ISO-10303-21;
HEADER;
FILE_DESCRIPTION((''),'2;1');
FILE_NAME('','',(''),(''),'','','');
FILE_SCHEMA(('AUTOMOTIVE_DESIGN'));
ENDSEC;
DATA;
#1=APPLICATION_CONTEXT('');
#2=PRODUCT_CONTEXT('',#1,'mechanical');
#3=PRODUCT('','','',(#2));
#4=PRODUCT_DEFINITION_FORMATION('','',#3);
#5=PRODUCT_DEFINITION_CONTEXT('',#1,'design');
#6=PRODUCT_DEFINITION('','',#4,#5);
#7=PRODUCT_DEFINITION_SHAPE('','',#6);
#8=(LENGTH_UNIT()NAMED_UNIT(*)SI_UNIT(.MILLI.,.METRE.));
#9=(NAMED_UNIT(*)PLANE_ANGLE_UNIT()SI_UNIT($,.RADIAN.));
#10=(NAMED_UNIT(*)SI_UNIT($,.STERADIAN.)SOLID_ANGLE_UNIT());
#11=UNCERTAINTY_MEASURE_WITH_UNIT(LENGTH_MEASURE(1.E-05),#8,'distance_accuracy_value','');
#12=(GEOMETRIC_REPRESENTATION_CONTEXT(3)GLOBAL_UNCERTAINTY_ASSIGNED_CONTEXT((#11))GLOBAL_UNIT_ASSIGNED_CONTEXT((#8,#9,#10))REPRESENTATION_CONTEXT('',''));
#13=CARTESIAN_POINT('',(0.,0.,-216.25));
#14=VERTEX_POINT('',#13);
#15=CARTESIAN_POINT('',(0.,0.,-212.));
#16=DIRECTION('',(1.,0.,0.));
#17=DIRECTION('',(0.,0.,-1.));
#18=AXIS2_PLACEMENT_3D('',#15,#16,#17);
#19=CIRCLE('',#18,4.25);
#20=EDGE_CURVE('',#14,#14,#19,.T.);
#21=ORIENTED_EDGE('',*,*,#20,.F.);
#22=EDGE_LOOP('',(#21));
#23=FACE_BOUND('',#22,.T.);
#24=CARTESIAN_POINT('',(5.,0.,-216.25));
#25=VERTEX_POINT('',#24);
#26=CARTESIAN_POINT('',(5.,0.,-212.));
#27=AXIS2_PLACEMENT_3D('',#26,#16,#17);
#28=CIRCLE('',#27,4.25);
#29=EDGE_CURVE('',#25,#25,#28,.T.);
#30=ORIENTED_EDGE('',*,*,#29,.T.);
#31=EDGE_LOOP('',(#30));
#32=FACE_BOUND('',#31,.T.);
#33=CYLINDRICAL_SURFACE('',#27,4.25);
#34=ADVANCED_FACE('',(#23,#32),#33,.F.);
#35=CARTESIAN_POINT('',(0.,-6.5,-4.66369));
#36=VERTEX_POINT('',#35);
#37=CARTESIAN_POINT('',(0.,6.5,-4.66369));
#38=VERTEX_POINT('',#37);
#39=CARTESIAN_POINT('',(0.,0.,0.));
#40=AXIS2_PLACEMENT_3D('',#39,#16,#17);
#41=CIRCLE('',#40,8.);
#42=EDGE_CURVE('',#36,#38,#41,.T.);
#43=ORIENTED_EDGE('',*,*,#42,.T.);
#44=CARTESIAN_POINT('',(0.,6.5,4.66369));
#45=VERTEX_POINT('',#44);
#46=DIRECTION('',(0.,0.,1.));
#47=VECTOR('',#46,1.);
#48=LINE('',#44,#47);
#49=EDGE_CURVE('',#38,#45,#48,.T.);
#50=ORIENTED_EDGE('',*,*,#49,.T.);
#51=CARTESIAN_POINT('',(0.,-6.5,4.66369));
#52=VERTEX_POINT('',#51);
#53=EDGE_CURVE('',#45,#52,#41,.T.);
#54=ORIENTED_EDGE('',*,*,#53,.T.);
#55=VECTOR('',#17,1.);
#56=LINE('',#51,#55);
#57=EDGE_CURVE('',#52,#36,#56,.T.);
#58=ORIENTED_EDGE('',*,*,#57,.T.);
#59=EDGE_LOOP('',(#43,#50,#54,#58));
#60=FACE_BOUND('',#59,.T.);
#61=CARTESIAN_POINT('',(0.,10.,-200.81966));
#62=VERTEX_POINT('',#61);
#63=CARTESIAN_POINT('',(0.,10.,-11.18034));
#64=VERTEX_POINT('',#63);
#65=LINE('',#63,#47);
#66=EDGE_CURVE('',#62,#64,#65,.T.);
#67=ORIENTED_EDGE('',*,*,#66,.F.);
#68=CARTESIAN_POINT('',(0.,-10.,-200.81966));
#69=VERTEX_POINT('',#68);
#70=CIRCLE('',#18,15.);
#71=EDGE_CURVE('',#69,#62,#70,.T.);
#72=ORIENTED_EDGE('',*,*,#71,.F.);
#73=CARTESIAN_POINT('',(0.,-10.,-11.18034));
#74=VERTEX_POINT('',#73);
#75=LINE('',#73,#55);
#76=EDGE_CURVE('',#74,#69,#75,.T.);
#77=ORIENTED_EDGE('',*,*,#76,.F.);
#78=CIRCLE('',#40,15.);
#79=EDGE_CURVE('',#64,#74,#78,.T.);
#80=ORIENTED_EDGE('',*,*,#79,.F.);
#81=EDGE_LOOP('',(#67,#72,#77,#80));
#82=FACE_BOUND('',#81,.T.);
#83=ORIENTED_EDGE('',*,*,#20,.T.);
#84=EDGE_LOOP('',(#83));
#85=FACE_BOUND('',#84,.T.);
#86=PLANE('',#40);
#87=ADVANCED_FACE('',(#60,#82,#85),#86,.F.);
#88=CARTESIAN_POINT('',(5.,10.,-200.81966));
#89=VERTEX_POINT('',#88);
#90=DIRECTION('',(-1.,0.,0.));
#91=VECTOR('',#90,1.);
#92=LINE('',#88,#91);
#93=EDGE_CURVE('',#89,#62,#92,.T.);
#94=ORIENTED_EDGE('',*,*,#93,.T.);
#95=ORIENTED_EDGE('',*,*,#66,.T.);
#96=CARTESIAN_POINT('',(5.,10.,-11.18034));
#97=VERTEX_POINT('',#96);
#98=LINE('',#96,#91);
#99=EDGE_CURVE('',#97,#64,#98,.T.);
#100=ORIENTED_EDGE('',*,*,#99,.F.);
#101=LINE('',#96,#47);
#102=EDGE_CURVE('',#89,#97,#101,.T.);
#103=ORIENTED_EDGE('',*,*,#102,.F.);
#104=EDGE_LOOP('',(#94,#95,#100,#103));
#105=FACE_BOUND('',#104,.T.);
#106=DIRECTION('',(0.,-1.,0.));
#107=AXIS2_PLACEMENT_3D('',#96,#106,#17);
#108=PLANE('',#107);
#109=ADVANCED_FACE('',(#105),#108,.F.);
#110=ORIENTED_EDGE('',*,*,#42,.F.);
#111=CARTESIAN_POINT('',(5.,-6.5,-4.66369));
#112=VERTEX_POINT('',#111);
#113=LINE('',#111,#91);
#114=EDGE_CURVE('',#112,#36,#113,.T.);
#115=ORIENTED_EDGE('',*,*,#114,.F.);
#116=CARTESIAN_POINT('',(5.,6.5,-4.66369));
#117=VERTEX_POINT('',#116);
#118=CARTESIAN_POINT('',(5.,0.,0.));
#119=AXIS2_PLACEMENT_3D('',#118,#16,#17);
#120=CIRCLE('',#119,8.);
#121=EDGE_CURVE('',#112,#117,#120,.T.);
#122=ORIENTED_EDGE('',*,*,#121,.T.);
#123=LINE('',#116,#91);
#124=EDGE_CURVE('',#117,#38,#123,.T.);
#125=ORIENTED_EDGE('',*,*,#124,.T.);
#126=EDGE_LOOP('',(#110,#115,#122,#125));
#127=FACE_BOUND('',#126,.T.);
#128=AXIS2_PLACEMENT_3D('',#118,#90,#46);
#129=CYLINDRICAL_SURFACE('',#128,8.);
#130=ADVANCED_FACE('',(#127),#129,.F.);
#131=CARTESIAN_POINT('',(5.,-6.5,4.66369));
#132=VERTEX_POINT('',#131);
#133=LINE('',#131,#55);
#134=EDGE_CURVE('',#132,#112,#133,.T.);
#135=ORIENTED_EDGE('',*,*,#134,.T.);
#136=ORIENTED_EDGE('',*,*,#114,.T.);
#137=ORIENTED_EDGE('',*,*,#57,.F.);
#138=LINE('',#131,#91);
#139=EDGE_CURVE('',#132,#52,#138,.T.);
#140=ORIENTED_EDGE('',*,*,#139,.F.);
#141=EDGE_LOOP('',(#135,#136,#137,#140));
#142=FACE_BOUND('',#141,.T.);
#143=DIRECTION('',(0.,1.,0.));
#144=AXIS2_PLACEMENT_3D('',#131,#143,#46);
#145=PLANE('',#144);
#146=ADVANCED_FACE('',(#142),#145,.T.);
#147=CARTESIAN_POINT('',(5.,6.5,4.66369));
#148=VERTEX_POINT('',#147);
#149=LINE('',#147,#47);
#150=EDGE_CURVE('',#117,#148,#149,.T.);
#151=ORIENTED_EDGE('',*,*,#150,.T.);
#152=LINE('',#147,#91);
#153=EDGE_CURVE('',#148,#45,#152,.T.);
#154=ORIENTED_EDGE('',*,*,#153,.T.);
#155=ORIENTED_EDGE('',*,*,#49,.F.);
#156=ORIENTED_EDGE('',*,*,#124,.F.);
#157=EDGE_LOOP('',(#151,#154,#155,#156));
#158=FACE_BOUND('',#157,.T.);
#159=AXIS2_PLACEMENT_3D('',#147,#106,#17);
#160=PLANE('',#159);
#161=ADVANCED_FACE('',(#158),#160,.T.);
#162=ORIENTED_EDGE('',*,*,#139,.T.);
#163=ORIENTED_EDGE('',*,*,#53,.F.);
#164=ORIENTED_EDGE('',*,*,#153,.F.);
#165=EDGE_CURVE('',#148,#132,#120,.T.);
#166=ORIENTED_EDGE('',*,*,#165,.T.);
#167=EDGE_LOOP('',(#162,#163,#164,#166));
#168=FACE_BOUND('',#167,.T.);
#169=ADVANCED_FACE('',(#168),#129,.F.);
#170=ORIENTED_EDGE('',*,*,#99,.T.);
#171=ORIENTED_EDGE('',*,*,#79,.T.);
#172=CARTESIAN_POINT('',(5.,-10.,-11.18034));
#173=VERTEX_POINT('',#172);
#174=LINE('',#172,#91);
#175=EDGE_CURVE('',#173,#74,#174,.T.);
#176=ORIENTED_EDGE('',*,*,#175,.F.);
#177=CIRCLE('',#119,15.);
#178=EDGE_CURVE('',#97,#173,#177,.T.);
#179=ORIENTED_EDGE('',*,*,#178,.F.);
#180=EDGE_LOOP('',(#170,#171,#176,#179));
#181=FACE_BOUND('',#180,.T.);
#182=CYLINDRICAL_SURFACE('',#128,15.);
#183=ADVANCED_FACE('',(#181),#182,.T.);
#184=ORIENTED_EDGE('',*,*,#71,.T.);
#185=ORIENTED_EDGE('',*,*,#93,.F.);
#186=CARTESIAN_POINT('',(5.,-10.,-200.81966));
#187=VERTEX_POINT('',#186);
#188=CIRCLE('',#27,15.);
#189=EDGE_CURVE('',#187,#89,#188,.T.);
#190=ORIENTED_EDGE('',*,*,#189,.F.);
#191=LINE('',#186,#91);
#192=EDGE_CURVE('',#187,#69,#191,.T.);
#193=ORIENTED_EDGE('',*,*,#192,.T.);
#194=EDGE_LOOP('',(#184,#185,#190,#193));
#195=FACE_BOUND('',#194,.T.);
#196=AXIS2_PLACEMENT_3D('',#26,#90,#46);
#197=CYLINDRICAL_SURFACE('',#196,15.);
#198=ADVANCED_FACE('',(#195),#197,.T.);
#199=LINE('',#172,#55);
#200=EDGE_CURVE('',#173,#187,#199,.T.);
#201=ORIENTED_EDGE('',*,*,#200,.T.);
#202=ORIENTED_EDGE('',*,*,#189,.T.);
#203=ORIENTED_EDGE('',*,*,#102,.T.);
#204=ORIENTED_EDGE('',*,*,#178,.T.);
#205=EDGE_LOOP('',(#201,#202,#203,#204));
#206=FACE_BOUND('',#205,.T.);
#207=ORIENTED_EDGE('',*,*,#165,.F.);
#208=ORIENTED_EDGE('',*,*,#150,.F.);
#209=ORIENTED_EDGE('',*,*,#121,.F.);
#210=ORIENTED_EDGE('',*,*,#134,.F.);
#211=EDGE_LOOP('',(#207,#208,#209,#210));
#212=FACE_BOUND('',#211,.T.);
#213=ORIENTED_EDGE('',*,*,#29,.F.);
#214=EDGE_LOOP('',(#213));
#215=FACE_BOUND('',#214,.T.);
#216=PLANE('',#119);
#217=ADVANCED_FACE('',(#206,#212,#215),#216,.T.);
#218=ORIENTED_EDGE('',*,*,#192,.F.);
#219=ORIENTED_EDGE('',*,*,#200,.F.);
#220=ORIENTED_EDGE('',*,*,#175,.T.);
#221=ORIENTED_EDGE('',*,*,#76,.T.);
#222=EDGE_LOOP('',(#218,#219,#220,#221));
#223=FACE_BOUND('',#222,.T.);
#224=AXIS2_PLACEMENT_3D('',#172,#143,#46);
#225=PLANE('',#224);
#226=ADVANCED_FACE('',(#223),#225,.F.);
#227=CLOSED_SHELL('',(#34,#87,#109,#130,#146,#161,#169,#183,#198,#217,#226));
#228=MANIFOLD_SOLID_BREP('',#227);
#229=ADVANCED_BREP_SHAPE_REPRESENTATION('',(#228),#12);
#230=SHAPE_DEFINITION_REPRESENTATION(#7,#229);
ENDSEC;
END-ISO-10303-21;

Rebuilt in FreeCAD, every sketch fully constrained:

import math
import FreeCAD as App
import Part
import Sketcher
from FreeCAD import Vector

doc = App.newDocument("Part")
body = doc.addObject("PartDesign::Body", "Body")

sketch1 = body.newObject("Sketcher::SketchObject", "Sketch")
sketch1.AttachmentSupport = (doc.getObject("YZ_Plane"), [""])
sketch1.MapMode = "FlatFace"
sketch1.addGeometry(Part.LineSegment(Vector(10, -201, 0), Vector(10, -11, 0)), False)
sketch1.addGeometry(Part.ArcOfCircle(Part.Circle(Vector(0, 0, 0), Vector(0, 0, 1), 15), math.radians(-48), math.radians(228)), False)
sketch1.addGeometry(Part.LineSegment(Vector(-10, -11, 0), Vector(-10, -201, 0)), False)
sketch1.addGeometry(Part.ArcOfCircle(Part.Circle(Vector(0, -212, 0), Vector(0, 0, 1), 15), math.radians(132), math.radians(408)), False)
sketch1.addGeometry(Part.ArcOfCircle(Part.Circle(Vector(0, 0, 0), Vector(0, 0, 1), 8), math.radians(36), math.radians(144)), False)
sketch1.addGeometry(Part.LineSegment(Vector(6, 5, 0), Vector(6, -5, 0)), False)
sketch1.addGeometry(Part.ArcOfCircle(Part.Circle(Vector(0, 0, 0), Vector(0, 0, 1), 8), math.radians(-144), math.radians(-36)), False)
sketch1.addGeometry(Part.LineSegment(Vector(-6, -5, 0), Vector(-6, 5, 0)), False)
sketch1.addConstraint(Sketcher.Constraint("Coincident", 0, 2, 1, 1))
sketch1.addConstraint(Sketcher.Constraint("Coincident", 1, 2, 2, 1))
sketch1.addConstraint(Sketcher.Constraint("Coincident", 2, 2, 3, 1))
sketch1.addConstraint(Sketcher.Constraint("Coincident", 3, 2, 0, 1))
sketch1.addConstraint(Sketcher.Constraint("Coincident", 4, 1, 5, 1))
sketch1.addConstraint(Sketcher.Constraint("Coincident", 5, 2, 6, 2))
sketch1.addConstraint(Sketcher.Constraint("Coincident", 6, 1, 7, 1))
sketch1.addConstraint(Sketcher.Constraint("Coincident", 7, 2, 4, 2))
sketch1.addConstraint(Sketcher.Constraint("Vertical", 0))
sketch1.addConstraint(Sketcher.Constraint("Vertical", 2))
sketch1.addConstraint(Sketcher.Constraint("Vertical", 5))
sketch1.addConstraint(Sketcher.Constraint("Vertical", 7))
sketch1.addConstraint(Sketcher.Constraint("Coincident", 1, 3, -1, 1))
sketch1.addConstraint(Sketcher.Constraint("Coincident", 4, 3, -1, 1))
sketch1.addConstraint(Sketcher.Constraint("Coincident", 6, 3, -1, 1))
sketch1.addConstraint(Sketcher.Constraint("Equal", 1, 3))
sketch1.addConstraint(Sketcher.Constraint("Equal", 4, 6))
sketch1.addConstraint(Sketcher.Constraint("Symmetric", 2, 2, 3, 2, -2))
sketch1.addConstraint(Sketcher.Constraint("Horizontal", 5, 2, 6, 1))
sketch1.addConstraint(Sketcher.Constraint("Radius", 1, 15.0))
sketch1.addConstraint(Sketcher.Constraint("Radius", 4, 8.0))
sketch1.addConstraint(Sketcher.Constraint("DistanceY", 3, 3, -1, 1, 212.0))
sketch1.addConstraint(Sketcher.Constraint("DistanceX", -1, 1, 0, 2, 10.0))
sketch1.addConstraint(Sketcher.Constraint("DistanceX", 6, 1, 5, 2, 13.0))
pad1 = body.newObject("PartDesign::Pad", "Pad")
pad1.Profile = sketch1
pad1.Length = 5

sketch2 = body.newObject("Sketcher::SketchObject", "Sketch001")
sketch2.AttachmentSupport = (doc.getObject("YZ_Plane"), [""])
sketch2.MapMode = "FlatFace"
sketch2.AttachmentOffset = App.Placement(Vector(0, 0, 5), App.Rotation())
sketch2.addGeometry(Part.Circle(Vector(0, -212, 0), Vector(0, 0, 1), 4.2), False)
sketch2.addConstraint(Sketcher.Constraint("PointOnObject", 0, 3, -2))
sketch2.addConstraint(Sketcher.Constraint("Diameter", 0, 8.5))
sketch2.addConstraint(Sketcher.Constraint("DistanceY", 0, 3, -1, 1, 212.0))
doc.recompute()
hole = body.newObject("PartDesign::Hole", "Hole")
hole.Profile = sketch2
hole.ThreadType = "None"
hole.Diameter = 8.5
hole.DepthType = "ThroughAll"

doc.recompute()
